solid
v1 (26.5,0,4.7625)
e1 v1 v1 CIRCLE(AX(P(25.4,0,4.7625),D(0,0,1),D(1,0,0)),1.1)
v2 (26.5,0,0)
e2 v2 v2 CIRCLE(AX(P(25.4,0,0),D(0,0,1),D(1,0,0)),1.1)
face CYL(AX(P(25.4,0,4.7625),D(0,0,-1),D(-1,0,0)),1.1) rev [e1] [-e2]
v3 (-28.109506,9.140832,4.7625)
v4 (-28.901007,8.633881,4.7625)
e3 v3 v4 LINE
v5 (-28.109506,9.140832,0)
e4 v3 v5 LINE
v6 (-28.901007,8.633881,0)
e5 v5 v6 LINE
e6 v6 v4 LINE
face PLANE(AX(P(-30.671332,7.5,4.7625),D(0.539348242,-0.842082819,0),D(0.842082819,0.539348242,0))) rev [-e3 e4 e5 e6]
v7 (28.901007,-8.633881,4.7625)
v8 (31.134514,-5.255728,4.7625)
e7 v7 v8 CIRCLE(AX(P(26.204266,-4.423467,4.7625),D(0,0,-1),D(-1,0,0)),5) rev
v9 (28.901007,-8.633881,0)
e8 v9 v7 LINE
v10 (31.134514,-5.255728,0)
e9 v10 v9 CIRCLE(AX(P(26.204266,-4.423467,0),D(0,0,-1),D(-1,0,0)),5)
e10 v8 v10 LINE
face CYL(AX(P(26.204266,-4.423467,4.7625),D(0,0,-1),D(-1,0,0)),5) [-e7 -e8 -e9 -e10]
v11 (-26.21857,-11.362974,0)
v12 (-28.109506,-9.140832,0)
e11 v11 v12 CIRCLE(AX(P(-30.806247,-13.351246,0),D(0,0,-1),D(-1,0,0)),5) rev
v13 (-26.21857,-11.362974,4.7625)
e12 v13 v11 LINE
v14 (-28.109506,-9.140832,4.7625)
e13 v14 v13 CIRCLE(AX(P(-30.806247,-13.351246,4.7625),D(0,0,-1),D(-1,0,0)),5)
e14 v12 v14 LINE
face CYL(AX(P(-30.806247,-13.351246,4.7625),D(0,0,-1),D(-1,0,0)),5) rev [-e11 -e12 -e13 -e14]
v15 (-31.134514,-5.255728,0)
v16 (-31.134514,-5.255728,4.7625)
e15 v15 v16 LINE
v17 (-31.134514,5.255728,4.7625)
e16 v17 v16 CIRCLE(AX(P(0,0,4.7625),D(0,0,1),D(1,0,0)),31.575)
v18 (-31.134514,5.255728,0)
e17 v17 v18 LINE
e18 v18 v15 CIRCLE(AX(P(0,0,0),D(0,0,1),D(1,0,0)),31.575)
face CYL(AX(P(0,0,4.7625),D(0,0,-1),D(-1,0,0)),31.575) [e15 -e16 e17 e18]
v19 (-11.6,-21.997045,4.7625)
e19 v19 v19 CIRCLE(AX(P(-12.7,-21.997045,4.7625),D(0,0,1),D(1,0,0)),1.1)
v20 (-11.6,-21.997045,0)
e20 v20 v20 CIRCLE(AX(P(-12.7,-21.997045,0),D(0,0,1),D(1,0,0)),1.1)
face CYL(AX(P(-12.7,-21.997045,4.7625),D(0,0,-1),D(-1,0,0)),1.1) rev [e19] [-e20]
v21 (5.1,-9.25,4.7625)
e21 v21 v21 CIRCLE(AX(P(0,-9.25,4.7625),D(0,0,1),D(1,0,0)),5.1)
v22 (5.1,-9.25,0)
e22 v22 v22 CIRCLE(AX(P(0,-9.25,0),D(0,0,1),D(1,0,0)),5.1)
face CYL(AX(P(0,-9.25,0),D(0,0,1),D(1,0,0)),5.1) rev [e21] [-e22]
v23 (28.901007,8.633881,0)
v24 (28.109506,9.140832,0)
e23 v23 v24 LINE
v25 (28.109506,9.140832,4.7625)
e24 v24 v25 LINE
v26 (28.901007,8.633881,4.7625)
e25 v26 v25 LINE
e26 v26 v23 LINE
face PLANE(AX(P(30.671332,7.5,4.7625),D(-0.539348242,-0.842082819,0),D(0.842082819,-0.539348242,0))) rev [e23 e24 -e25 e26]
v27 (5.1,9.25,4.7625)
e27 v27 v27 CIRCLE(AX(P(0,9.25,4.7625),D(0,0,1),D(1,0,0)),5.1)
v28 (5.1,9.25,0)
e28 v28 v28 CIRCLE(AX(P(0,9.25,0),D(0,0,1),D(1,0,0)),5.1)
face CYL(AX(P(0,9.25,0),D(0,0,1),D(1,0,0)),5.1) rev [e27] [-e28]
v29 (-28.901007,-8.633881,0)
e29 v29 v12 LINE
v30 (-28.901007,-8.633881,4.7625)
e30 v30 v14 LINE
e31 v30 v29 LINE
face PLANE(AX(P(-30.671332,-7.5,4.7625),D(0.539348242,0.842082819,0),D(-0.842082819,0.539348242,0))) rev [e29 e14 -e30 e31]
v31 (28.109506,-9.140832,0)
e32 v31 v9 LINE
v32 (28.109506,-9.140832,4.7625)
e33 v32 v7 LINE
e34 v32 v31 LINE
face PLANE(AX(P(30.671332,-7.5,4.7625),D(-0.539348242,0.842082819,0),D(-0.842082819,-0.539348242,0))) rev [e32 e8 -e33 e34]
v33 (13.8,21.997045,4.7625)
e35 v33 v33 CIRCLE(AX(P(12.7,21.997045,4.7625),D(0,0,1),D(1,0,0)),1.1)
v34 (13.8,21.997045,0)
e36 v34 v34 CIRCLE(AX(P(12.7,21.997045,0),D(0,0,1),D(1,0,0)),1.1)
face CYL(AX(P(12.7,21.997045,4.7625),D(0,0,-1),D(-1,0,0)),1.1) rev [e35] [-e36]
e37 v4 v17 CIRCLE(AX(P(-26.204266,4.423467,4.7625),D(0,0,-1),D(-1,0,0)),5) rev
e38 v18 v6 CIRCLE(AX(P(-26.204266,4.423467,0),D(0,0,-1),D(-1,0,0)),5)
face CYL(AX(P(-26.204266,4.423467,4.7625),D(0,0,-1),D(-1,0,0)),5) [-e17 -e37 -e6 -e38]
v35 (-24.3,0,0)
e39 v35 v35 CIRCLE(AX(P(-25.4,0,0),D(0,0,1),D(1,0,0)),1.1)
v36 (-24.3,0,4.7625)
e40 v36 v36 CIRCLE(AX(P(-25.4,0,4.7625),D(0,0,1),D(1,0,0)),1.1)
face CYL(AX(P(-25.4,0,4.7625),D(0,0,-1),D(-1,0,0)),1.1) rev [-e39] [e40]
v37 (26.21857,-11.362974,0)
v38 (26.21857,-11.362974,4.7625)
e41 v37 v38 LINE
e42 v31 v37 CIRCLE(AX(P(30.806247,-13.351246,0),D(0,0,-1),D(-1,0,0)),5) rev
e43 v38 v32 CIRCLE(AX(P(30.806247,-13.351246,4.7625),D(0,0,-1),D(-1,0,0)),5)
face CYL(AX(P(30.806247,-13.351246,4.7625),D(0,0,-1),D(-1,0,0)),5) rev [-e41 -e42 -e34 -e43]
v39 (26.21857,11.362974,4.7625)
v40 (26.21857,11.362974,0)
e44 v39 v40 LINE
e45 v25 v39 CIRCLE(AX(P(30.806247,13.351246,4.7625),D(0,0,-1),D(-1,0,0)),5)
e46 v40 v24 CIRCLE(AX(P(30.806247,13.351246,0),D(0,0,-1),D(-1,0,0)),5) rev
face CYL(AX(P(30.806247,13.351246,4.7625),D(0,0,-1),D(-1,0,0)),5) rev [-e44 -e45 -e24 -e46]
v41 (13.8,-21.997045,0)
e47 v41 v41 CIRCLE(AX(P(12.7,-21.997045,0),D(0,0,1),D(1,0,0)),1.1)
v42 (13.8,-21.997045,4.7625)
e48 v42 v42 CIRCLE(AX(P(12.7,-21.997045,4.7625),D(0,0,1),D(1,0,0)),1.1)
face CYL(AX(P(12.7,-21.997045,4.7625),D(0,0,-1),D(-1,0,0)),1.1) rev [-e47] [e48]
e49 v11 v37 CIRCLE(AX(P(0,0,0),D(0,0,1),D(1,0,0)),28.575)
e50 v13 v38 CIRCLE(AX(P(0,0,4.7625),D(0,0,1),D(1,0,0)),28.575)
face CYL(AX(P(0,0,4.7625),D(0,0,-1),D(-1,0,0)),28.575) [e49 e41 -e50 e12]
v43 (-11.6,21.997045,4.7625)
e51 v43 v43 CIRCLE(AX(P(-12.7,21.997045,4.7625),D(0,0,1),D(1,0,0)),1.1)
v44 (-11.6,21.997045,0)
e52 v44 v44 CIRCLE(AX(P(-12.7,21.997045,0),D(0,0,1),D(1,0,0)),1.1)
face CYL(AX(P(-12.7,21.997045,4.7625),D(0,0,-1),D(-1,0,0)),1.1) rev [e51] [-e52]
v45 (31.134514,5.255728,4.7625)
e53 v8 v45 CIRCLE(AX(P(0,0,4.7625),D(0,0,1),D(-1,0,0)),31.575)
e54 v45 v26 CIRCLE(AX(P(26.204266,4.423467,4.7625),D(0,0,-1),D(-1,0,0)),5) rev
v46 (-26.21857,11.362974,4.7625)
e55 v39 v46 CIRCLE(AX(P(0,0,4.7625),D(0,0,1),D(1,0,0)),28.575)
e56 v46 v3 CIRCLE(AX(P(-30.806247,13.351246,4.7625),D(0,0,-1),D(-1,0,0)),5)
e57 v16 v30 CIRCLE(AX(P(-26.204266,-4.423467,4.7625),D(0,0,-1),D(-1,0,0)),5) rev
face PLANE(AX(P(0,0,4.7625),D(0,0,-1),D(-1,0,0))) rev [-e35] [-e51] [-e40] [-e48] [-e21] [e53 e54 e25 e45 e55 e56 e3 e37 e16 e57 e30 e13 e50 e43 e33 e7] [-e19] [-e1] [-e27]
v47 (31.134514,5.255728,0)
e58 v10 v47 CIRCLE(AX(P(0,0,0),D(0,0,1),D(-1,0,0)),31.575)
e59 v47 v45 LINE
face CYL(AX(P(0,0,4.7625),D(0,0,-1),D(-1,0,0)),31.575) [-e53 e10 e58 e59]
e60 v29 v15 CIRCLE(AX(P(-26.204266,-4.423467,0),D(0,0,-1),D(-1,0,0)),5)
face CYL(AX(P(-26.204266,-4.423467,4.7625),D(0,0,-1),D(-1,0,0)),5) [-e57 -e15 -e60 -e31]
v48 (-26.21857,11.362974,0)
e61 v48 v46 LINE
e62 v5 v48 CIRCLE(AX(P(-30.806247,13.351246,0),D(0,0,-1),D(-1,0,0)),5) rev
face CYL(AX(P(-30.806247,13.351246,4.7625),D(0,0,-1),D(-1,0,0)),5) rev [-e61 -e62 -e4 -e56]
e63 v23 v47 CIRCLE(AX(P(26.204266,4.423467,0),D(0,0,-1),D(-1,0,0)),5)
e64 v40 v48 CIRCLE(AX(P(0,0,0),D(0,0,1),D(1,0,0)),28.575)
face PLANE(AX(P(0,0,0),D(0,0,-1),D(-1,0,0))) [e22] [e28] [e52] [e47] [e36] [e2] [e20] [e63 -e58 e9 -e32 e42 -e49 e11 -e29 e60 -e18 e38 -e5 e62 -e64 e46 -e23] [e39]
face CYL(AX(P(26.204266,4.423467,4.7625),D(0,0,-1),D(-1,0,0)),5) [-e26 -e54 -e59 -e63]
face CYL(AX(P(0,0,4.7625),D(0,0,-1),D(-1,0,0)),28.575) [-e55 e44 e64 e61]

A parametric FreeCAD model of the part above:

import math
import FreeCAD as App
import Part
import Sketcher

V = App.Vector
Q = App.Units.Quantity


def edges_at(feature, points):
    """Names of the edges that pass closest to the given points."""
    edges = feature.Shape.Edges
    near = lambda p: min(range(len(edges)), key=lambda i: edges[i].distToShape(Part.Vertex(*p))[0])
    return sorted({f"Edge{near(p) + 1}" for p in points})

doc = App.newDocument("Part")
params = doc.addObject("Spreadsheet::Sheet", "Params")
for row, (alias, value) in enumerate([
    ("sketch1_diameter", "2.2 mm"),
    ("pad1_length", "4.7625 mm"),
    ("fillet_radius", "5 mm"),
    ("sketch2_diameter", "10.2 mm"),
], start=1):
    params.set(f"A{row}", alias)
    params.set(f"B{row}", "=" + value)
    params.setAlias(f"B{row}", alias)

body = doc.addObject("PartDesign::Body", "Body")

# Sketch on XY plane
sketch1 = doc.addObject("Sketcher::SketchObject", "Sketch")
body.addObject(sketch1)
sketch1.AttachmentSupport = (doc.XY_Plane, [""])
sketch1.MapMode = "FlatFace"
sketch1.addGeometry([
    Part.LineSegment(V(-26.8, 10, 0), V(-30.7, 7.5, 0)),  # 0
    Part.ArcOfCircle(Part.Circle(V(0, 0, 0), V(0, 0, 1), 31.6), math.radians(166), math.radians(194)),  # 1
    Part.LineSegment(V(-30.7, -7.5, 0), V(-26.8, -10, 0)),  # 2
    Part.ArcOfCircle(Part.Circle(V(0, 0, 0), V(0, 0, 1), 28.6), math.radians(-160), math.radians(-20)),  # 3
    Part.LineSegment(V(26.8, -10, 0), V(30.7, -7.5, 0)),  # 4
    Part.ArcOfCircle(Part.Circle(V(0, 0, 0), V(0, 0, 1), 31.6), math.radians(-14), math.radians(14)),  # 5
    Part.LineSegment(V(30.7, 7.5, 0), V(26.8, 10, 0)),  # 6
    Part.ArcOfCircle(Part.Circle(V(0, 0, 0), V(0, 0, 1), 28.6), math.radians(20), math.radians(160)),  # 7
    Part.Circle(V(12.7, -22, 0), V(0, 0, 1), 1.1),  # 8
    Part.Circle(V(-12.7, -22, 0), V(0, 0, 1), 1.1),  # 9
    Part.Circle(V(25.4, 0, 0), V(0, 0, 1), 1.1),  # 10
    Part.Circle(V(12.7, 22, 0), V(0, 0, 1), 1.1),  # 11
    Part.Circle(V(-25.4, 0, 0), V(0, 0, 1), 1.1),  # 12
    Part.Circle(V(-12.7, 22, 0), V(0, 0, 1), 1.1),  # 13
], False)
sketch1.addConstraint([
    Sketcher.Constraint("Coincident", 0, 2, 1, 1),
    Sketcher.Constraint("Coincident", 1, 2, 2, 1),
    Sketcher.Constraint("Coincident", 2, 2, 3, 1),
    Sketcher.Constraint("Coincident", 3, 2, 4, 1),
    Sketcher.Constraint("Coincident", 4, 2, 5, 1),
    Sketcher.Constraint("Coincident", 5, 2, 6, 1),
    Sketcher.Constraint("Coincident", 6, 2, 7, 1),
    Sketcher.Constraint("Coincident", 7, 2, 0, 1),
    Sketcher.Constraint("Coincident", 1, 3, -1, 1),
    Sketcher.Constraint("Coincident", 3, 3, -1, 1),
    Sketcher.Constraint("Coincident", 5, 3, -1, 1),
    Sketcher.Constraint("Coincident", 7, 3, -1, 1),
    Sketcher.Constraint("Equal", 1, 5),
    Sketcher.Constraint("Equal", 3, 7),
    Sketcher.Constraint("Equal", 8, 9),
    Sketcher.Constraint("Equal", 9, 10),
    Sketcher.Constraint("Equal", 10, 11),
    Sketcher.Constraint("Equal", 11, 12),
    Sketcher.Constraint("Equal", 12, 13),
    Sketcher.Constraint("Symmetric", 9, 3, 11, 3, -1, 1),
    Sketcher.Constraint("Symmetric", 10, 3, 12, 3, -1, 1),
    Sketcher.Constraint("Symmetric", 8, 3, 13, 3, -1, 1),
    Sketcher.Constraint("Symmetric", 8, 3, 9, 3, -2),
    Sketcher.Constraint("PointOnObject", 10, 3, -1),
    Sketcher.Constraint("Parallel", 0, 4),
    Sketcher.Constraint("Parallel", 2, 6),
    Sketcher.Constraint("Horizontal", 2, 2, 3, 2),
    Sketcher.Constraint("Horizontal", 1, 2, 4, 2),
    Sketcher.Constraint("Horizontal", 0, 2, 5, 2),
    Sketcher.Constraint("Vertical", 0, 2, 1, 2),
    Sketcher.Constraint("Diameter", 8, Q("2.2 mm")),
    Sketcher.Constraint("DistanceY", 2, 2, -1, 1, Q("10 mm")),
    Sketcher.Constraint("Radius", 1, Q("31.575 mm")),
    Sketcher.Constraint("Radius", 3, Q("28.575 mm")),
    Sketcher.Constraint("DistanceY", 1, 2, 0, 2, Q("15 mm")),
    Sketcher.Constraint("DistanceX", -1, 1, 8, 3, Q("12.7 mm")),
    Sketcher.Constraint("DistanceX", -1, 1, 10, 3, Q("25.4 mm")),
    Sketcher.Constraint("DistanceY", 8, 3, -1, 1, Q("21.997045 mm")),
])
sketch1.setExpression("Constraints[30]", "Params.sketch1_diameter")
pad1 = doc.addObject("PartDesign::Pad", "Pad")
body.addObject(pad1)
pad1.Profile = sketch1
pad1.setExpression("Length", "Params.pad1_length")
doc.recompute()

fillet = doc.addObject("PartDesign::Fillet", "Fillet")
body.addObject(fillet)
fillet.Base = (pad1, edges_at(pad1, [
    (30.671, -7.5, 2.381),
    (26.768, -10, 2.381),
    (-26.768, -10, 2.381),
    (-30.671, -7.5, 2.381),
    (-30.671, 7.5, 2.381),
    (-26.768, 10, 2.381),
    (26.768, 10, 2.381),
    (30.671, 7.5, 2.381),
]))
fillet.setExpression("Radius", "Params.fillet_radius")

# Sketch on XY plane
sketch2 = doc.addObject("Sketcher::SketchObject", "Sketch001")
body.addObject(sketch2)
sketch2.AttachmentSupport = (doc.XY_Plane, [""])
sketch2.MapMode = "FlatFace"
sketch2.AttachmentOffset = App.Placement(V(0, 0, 4.7625), App.Rotation())
sketch2.addGeometry([
    Part.Circle(V(0, -9, 0), V(0, 0, 1), 5),
    Part.Circle(V(0, 9, 0), V(0, 0, 1), 5),
], False)
sketch2.addConstraint([
    Sketcher.Constraint("Equal", 0, 1),
    Sketcher.Constraint("Symmetric", 0, 3, 1, 3, -1, 1),
    Sketcher.Constraint("PointOnObject", 0, 3, -2),
    Sketcher.Constraint("Diameter", 0, Q("10.2 mm")),
    Sketcher.Constraint("DistanceY", 0, 3, 1, 3, Q("18.5 mm")),
])
sketch2.setExpression("Constraints[3]", "Params.sketch2_diameter")
pocket1 = doc.addObject("PartDesign::Pocket", "Pocket")
body.addObject(pocket1)
pocket1.Profile = sketch2
pocket1.Type = "ThroughAll"

doc.recompute()
